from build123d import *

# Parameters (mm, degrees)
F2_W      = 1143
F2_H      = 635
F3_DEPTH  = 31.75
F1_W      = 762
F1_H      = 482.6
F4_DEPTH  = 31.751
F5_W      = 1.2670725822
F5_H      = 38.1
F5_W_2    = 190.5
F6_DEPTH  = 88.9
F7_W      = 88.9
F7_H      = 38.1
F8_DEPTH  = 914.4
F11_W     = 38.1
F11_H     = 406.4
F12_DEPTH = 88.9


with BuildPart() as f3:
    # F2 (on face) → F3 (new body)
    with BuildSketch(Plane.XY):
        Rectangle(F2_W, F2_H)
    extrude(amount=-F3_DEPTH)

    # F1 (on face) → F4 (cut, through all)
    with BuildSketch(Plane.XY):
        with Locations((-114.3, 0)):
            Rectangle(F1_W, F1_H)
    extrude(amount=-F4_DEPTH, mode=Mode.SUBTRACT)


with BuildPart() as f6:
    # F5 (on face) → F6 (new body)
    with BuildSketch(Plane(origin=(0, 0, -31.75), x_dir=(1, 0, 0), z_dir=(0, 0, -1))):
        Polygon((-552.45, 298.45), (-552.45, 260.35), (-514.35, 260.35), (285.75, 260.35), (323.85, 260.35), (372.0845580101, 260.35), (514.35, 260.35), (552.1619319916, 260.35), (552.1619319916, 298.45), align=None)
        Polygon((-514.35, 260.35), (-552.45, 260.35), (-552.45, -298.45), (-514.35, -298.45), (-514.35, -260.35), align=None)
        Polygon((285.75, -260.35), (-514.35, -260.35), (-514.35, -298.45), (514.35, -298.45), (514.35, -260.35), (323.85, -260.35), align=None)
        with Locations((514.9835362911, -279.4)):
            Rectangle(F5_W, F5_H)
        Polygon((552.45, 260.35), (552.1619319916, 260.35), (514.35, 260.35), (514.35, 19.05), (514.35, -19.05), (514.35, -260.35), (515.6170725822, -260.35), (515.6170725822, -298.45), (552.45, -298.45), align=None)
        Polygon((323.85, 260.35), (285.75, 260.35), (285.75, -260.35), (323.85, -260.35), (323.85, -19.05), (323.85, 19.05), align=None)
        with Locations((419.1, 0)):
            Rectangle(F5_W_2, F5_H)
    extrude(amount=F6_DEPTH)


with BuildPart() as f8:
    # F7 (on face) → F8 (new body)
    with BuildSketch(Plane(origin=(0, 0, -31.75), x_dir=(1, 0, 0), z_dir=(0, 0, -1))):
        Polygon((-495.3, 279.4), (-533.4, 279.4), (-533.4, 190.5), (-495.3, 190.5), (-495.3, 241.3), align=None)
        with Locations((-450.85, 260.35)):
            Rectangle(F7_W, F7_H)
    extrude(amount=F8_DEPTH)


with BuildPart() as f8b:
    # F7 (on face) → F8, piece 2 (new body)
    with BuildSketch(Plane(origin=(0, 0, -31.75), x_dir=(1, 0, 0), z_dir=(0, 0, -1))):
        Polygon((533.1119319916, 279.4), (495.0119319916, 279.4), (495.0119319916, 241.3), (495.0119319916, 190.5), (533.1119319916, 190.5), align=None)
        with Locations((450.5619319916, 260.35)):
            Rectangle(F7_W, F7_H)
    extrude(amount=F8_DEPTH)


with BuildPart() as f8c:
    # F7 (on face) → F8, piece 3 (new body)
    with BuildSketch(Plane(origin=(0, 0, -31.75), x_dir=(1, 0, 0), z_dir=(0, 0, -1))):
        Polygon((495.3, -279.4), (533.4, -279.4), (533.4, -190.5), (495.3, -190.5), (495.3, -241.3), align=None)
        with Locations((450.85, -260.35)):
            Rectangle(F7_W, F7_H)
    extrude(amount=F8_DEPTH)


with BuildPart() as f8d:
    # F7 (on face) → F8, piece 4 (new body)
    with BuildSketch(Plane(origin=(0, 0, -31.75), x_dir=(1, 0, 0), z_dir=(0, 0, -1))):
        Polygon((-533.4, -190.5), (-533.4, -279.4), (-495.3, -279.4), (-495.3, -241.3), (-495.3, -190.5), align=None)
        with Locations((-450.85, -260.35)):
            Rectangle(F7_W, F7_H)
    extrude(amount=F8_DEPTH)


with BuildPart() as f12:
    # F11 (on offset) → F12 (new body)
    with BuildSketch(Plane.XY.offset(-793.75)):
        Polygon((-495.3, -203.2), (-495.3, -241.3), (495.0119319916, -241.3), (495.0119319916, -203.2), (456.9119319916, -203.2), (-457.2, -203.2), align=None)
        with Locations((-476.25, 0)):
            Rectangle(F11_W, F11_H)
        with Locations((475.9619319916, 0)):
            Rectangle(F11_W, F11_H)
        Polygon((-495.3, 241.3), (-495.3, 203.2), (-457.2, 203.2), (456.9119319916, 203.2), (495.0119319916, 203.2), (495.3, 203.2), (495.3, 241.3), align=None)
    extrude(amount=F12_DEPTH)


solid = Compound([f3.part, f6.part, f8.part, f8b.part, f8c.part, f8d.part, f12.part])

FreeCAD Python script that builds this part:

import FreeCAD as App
import Part
import Sketcher

V = App.Vector
Q = App.Units.Quantity

doc = App.newDocument("Part")
params = doc.addObject("Spreadsheet::Sheet", "Params")
for row, (alias, value) in enumerate([
    ("sketch1_width", "45 in"),
    ("sketch1_height", "25 in"),
    ("pad1_length", "1.25 in"),
    ("sketch2_width", "30 in"),
    ("sketch2_height", "19 in"),
    ("sketch3_height", "22 in"),
    ("sketch3_width", "43.5 in"),
    ("sketch3_width2", "7.5 in"),
    ("sketch3_width3", "31.5 in"),
    ("sketch3_height2", "23.5 in"),
    ("pad2_length", "3.5 in"),
    ("sketch4_width", "5 in"),
    ("sketch4_height", "2 in"),
    ("pad3_length", "36 in"),
    ("sketch5_width", "5 in"),
    ("sketch5_height", "2 in"),
    ("pad4_length", "36 in"),
    ("sketch6_width", "5 in"),
    ("sketch6_height", "2 in"),
    ("pad5_length", "36 in"),
    ("sketch7_width", "5 in"),
    ("sketch7_height", "2 in"),
    ("pad6_length", "36 in"),
    ("sketch8_width", "39 in"),
    ("sketch8_height", "19 in"),
    ("sketch8_height2", "16 in"),
    ("sketch8_height3", "17.5 in"),
    ("pad7_length", "3.5 in"),
], start=1):
    params.set(f"A{row}", alias)
    params.set(f"B{row}", "=" + value)
    params.setAlias(f"B{row}", alias)

body = doc.addObject("PartDesign::Body", "Body")

# Sketch on XY plane
sketch1 = doc.addObject("Sketcher::SketchObject", "Sketch")
body.addObject(sketch1)
sketch1.AttachmentSupport = (doc.XY_Plane, [""])
sketch1.MapMode = "FlatFace"
sketch1.addGeometry([
    Part.LineSegment(V(-572, 318, 0), V(-572, -318, 0)),
    Part.LineSegment(V(-572, -318, 0), V(572, -318, 0)),
    Part.LineSegment(V(572, -318, 0), V(572, 318, 0)),
    Part.LineSegment(V(572, 318, 0), V(-572, 318, 0)),
], False)
sketch1.addConstraint([
    Sketcher.Constraint("Coincident", 0, 2, 1, 1),
    Sketcher.Constraint("Coincident", 1, 2, 2, 1),
    Sketcher.Constraint("Coincident", 2, 2, 3, 1),
    Sketcher.Constraint("Coincident", 3, 2, 0, 1),
    Sketcher.Constraint("Vertical", 0),
    Sketcher.Constraint("Horizontal", 1),
    Sketcher.Constraint("Vertical", 2),
    Sketcher.Constraint("Horizontal", 3),
    Sketcher.Constraint("Symmetric", 0, 2, 2, 2, -1, 1),
    Sketcher.Constraint("DistanceX", 1, 1, 1, 2, Q("45 in")),
    Sketcher.Constraint("DistanceY", 0, 2, 0, 1, Q("25 in")),
])
sketch1.setExpression("Constraints[9]", "Params.sketch1_width")
sketch1.setExpression("Constraints[10]", "Params.sketch1_height")
pad1 = doc.addObject("PartDesign::Pad", "Pad")
body.addObject(pad1)
pad1.Profile = sketch1
pad1.setExpression("Length", "Params.pad1_length")
pad1.Reversed = True

# Sketch on XY plane
sketch2 = doc.addObject("Sketcher::SketchObject", "Sketch001")
body.addObject(sketch2)
sketch2.AttachmentSupport = (doc.XY_Plane, [""])
sketch2.MapMode = "FlatFace"
sketch2.addGeometry([
    Part.LineSegment(V(-495, 241, 0), V(-495, -241, 0)),
    Part.LineSegment(V(-495, -241, 0), V(267, -241, 0)),
    Part.LineSegment(V(267, -241, 0), V(267, 241, 0)),
    Part.LineSegment(V(267, 241, 0), V(-495, 241, 0)),
], False)
sketch2.addConstraint([
    Sketcher.Constraint("Coincident", 0, 2, 1, 1),
    Sketcher.Constraint("Coincident", 1, 2, 2, 1),
    Sketcher.Constraint("Coincident", 2, 2, 3, 1),
    Sketcher.Constraint("Coincident", 3, 2, 0, 1),
    Sketcher.Constraint("Vertical", 0),
    Sketcher.Constraint("Horizontal", 1),
    Sketcher.Constraint("Vertical", 2),
    Sketcher.Constraint("Horizontal", 3),
    Sketcher.Constraint("DistanceX", 1, 1, 1, 2, Q("30 in")),
    Sketcher.Constraint("DistanceY", 0, 2, 0, 1, Q("19 in")),
    Sketcher.Constraint("DistanceX", 0, 2, -1, 1, Q("19.5 in")),
    Sketcher.Constraint("DistanceY", 0, 2, -1, 1, Q("9.5 in")),
])
sketch2.setExpression("Constraints[8]", "Params.sketch2_width")
sketch2.setExpression("Constraints[9]", "Params.sketch2_height")
pocket1 = doc.addObject("PartDesign::Pocket", "Pocket")
body.addObject(pocket1)
pocket1.Profile = sketch2
pocket1.Type = "ThroughAll"
body2 = doc.addObject("PartDesign::Body", "Body001")

# Sketch on XY plane
sketch3 = doc.addObject("Sketcher::SketchObject", "Sketch002")
body2.addObject(sketch3)
sketch3.AttachmentSupport = (doc.getObject("XY_Plane001"), [""])
sketch3.MapMode = "FlatFace"
sketch3.AttachmentOffset = App.Placement(V(0, 0, -1.25 * 25.4), App.Rotation())
sketch3.addGeometry([
    Part.LineSegment(V(-552.45, -298.45, 0), V(-552.45, 298.45, 0)),  # 0
    Part.LineSegment(V(-552.45, 298.45, 0), V(552.45, 298.45, 0)),  # 1
    Part.LineSegment(V(552.45, 298.45, 0), V(552.45, -260.35, 0)),  # 2
    Part.LineSegment(V(552.45, -260.35, 0), V(552.16, -260.35, 0)),  # 3
    Part.LineSegment(V(552.16, -260.35, 0), V(552.16, -298.45, 0)),  # 4
    Part.LineSegment(V(552.16, -298.45, 0), V(-552.45, -298.45, 0)),  # 5
    Part.LineSegment(V(514.35, 260.35, 0), V(323.85, 260.35, 0)),  # 6
    Part.LineSegment(V(323.85, 260.35, 0), V(323.85, 19.05, 0)),  # 7
    Part.LineSegment(V(323.85, 19.05, 0), V(514.35, 19.05, 0)),  # 8
    Part.LineSegment(V(514.35, 19.05, 0), V(514.35, 260.35, 0)),  # 9
    Part.LineSegment(V(323.85, -19.05, 0), V(323.85, -260.35, 0)),  # 10
    Part.LineSegment(V(323.85, -260.35, 0), V(514.35, -260.35, 0)),  # 11
    Part.LineSegment(V(514.35, -260.35, 0), V(514.35, -19.05, 0)),  # 12
    Part.LineSegment(V(514.35, -19.05, 0), V(323.85, -19.05, 0)),  # 13
    Part.LineSegment(V(285.75, 260.35, 0), V(-514.35, 260.35, 0)),  # 14
    Part.LineSegment(V(-514.35, 260.35, 0), V(-514.35, -260.35, 0)),  # 15
    Part.LineSegment(V(-514.35, -260.35, 0), V(285.75, -260.35, 0)),  # 16
    Part.LineSegment(V(285.75, -260.35, 0), V(285.75, 260.35, 0)),  # 17
], False)
sketch3.addConstraint([
    Sketcher.Constraint("Coincident", 0, 2, 1, 1),
    Sketcher.Constraint("Coincident", 1, 2, 2, 1),
    Sketcher.Constraint("Coincident", 2, 2, 3, 1),
    Sketcher.Constraint("Coincident", 3, 2, 4, 1),
    Sketcher.Constraint("Coincident", 4, 2, 5, 1),
    Sketcher.Constraint("Coincident", 5, 2, 0, 1),
    Sketcher.Constraint("Coincident", 6, 2, 7, 1),
    Sketcher.Constraint("Coincident", 7, 2, 8, 1),
    Sketcher.Constraint("Coincident", 8, 2, 9, 1),
    Sketcher.Constraint("Coincident", 9, 2, 6, 1),
    Sketcher.Constraint("Coincident", 10, 2, 11, 1),
    Sketcher.Constraint("Coincident", 11, 2, 12, 1),
    Sketcher.Constraint("Coincident", 12, 2, 13, 1),
    Sketcher.Constraint("Coincident", 13, 2, 10, 1),
    Sketcher.Constraint("Coincident", 14, 2, 15, 1),
    Sketcher.Constraint("Coincident", 15, 2, 16, 1),
    Sketcher.Constraint("Coincident", 16, 2, 17, 1),
    Sketcher.Constraint("Coincident", 17, 2, 14, 1),
    Sketcher.Constraint("Vertical", 0),
    Sketcher.Constraint("Horizontal", 1),
    Sketcher.Constraint("Vertical", 2),
    Sketcher.Constraint("Horizontal", 3),
    Sketcher.Constraint("Vertical", 4),
    Sketcher.Constraint("Horizontal", 5),
    Sketcher.Constraint("Horizontal", 6),
    Sketcher.Constraint("Vertical", 7),
    Sketcher.Constraint("Horizontal", 8),
    Sketcher.Constraint("Vertical", 9),
    Sketcher.Constraint("Vertical", 10),
    Sketcher.Constraint("Horizontal", 11),
    Sketcher.Constraint("Vertical", 12),
    Sketcher.Constraint("Horizontal", 13),
    Sketcher.Constraint("Horizontal", 14),
    Sketcher.Constraint("Vertical", 15),
    Sketcher.Constraint("Horizontal", 16),
    Sketcher.Constraint("Vertical", 17),
    Sketcher.Constraint("Symmetric", 1, 2, 5, 2, -1, 1),
    Sketcher.Constraint("Symmetric", 11, 2, 14, 2, -1, 1),
    Sketcher.Constraint("Symmetric", 9, 2, 15, 2, -1, 1),
    Sketcher.Constraint("Symmetric", 6, 2, 10, 2, -1),
    Sketcher.Constraint("Horizontal", 3, 2, 10, 2),
    Sketcher.Constraint("Equal", 9, 10),
    Sketcher.Constraint("DistanceY", 2, 2, 2, 1, Q("22 in")),
    Sketcher.Constraint("DistanceX", 1, 1, 1, 2, Q("43.5 in")),
    Sketcher.Constraint("DistanceX", 6, 2, 6, 1, Q("7.5 in")),
    Sketcher.Constraint("DistanceX", 14, 2, 14, 1, Q("31.5 in")),
    Sketcher.Constraint("DistanceY", 0, 1, 0, 2, Q("23.5 in")),
    Sketcher.Constraint("DistanceY", 7, 2, 7, 1, Q("9.5 in")),
    Sketcher.Constraint("DistanceX", 6, 2, 1, 2, Q("9 in")),
    Sketcher.Constraint("DistanceX", 3, 2, 3, 1, Q("0.288068 mm")),
])
sketch3.setExpression("Constraints[42]", "Params.sketch3_height")
sketch3.setExpression("Constraints[43]", "Params.sketch3_width")
sketch3.setExpression("Constraints[44]", "Params.sketch3_width2")
sketch3.setExpression("Constraints[45]", "Params.sketch3_width3")
sketch3.setExpression("Constraints[46]", "Params.sketch3_height2")
pad2 = doc.addObject("PartDesign::Pad", "Pad001")
body2.addObject(pad2)
pad2.Profile = sketch3
pad2.setExpression("Length", "Params.pad2_length")
pad2.Reversed = True
body3 = doc.addObject("PartDesign::Body", "Body002")

# Sketch on XY plane
sketch4 = doc.addObject("Sketcher::SketchObject", "Sketch003")
body3.addObject(sketch4)
sketch4.AttachmentSupport = (doc.getObject("XY_Plane002"), [""])
sketch4.MapMode = "FlatFace"
sketch4.AttachmentOffset = App.Placement(V(0, 0, -1.25 * 25.4), App.Rotation())
sketch4.addGeometry([
    Part.LineSegment(V(-533, -279, 0), V(-533, -190, 0)),  # 0
    Part.LineSegment(V(-533, -190, 0), V(-495, -190, 0)),  # 1
    Part.LineSegment(V(-495, -190, 0), V(-495, -241, 0)),  # 2
    Part.LineSegment(V(-495, -241, 0), V(-406, -241, 0)),  # 3
    Part.LineSegment(V(-406, -241, 0), V(-406, -279, 0)),  # 4
    Part.LineSegment(V(-406, -279, 0), V(-533, -279, 0)),  # 5
], False)
sketch4.addConstraint([
    Sketcher.Constraint("Coincident", 0, 2, 1, 1),
    Sketcher.Constraint("Coincident", 1, 2, 2, 1),
    Sketcher.Constraint("Coincident", 2, 2, 3, 1),
    Sketcher.Constraint("Coincident", 3, 2, 4, 1),
    Sketcher.Constraint("Coincident", 4, 2, 5, 1),
    Sketcher.Constraint("Coincident", 5, 2, 0, 1),
    Sketcher.Constraint("Vertical", 0),
    Sketcher.Constraint("Horizontal", 1),
    Sketcher.Constraint("Vertical", 2),
    Sketcher.Constraint("Horizontal", 3),
    Sketcher.Constraint("Vertical", 4),
    Sketcher.Constraint("Horizontal", 5),
    Sketcher.Constraint("Equal", 3, 0),
    Sketcher.Constraint("Equal", 1, 4),
    Sketcher.Constraint("DistanceX", 5, 2, 5, 1, Q("5 in")),
    Sketcher.Constraint("DistanceY", 2, 2, 2, 1, Q("2 in")),
    Sketcher.Constraint("DistanceX", 0, 2, -1, 1, Q("21 in")),
    Sketcher.Constraint("DistanceY", 4, 2, -1, 1, Q("11 in")),
])
sketch4.setExpression("Constraints[14]", "Params.sketch4_width")
sketch4.setExpression("Constraints[15]", "Params.sketch4_height")
pad3 = doc.addObject("PartDesign::Pad", "Pad002")
body3.addObject(pad3)
pad3.Profile = sketch4
pad3.setExpression("Length", "Params.pad3_length")
pad3.Reversed = True
body4 = doc.addObject("PartDesign::Body", "Body003")

# Sketch on XY plane
sketch5 = doc.addObject("Sketcher::SketchObject", "Sketch004")
body4.addObject(sketch5)
sketch5.AttachmentSupport = (doc.getObject("XY_Plane003"), [""])
sketch5.MapMode = "FlatFace"
sketch5.AttachmentOffset = App.Placement(V(0, 0, -1.25 * 25.4), App.Rotation())
sketch5.addGeometry([
    Part.LineSegment(V(533, -279, 0), V(406, -279, 0)),  # 0
    Part.LineSegment(V(406, -279, 0), V(406, -241, 0)),  # 1
    Part.LineSegment(V(406, -241, 0), V(495, -241, 0)),  # 2
    Part.LineSegment(V(495, -241, 0), V(495, -190, 0)),  # 3
    Part.LineSegment(V(495, -190, 0), V(533, -190, 0)),  # 4
    Part.LineSegment(V(533, -190, 0), V(533, -279, 0)),  # 5
], False)
sketch5.addConstraint([
    Sketcher.Constraint("Coincident", 0, 2, 1, 1),
    Sketcher.Constraint("Coincident", 1, 2, 2, 1),
    Sketcher.Constraint("Coincident", 2, 2, 3, 1),
    Sketcher.Constraint("Coincident", 3, 2, 4, 1),
    Sketcher.Constraint("Coincident", 4, 2, 5, 1),
    Sketcher.Constraint("Coincident", 5, 2, 0, 1),
    Sketcher.Constraint("Horizontal", 0),
    Sketcher.Constraint("Vertical", 1),
    Sketcher.Constraint("Horizontal", 2),
    Sketcher.Constraint("Vertical", 3),
    Sketcher.Constraint("Horizontal", 4),
    Sketcher.Constraint("Vertical", 5),
    Sketcher.Constraint("Equal", 4, 1),
    Sketcher.Constraint("Equal", 2, 5),
    Sketcher.Constraint("DistanceX", 0, 2, 0, 1, Q("5 in")),
    Sketcher.Constraint("DistanceY", 3, 1, 3, 2, Q("2 in")),
    Sketcher.Constraint("DistanceY", 0, 2, -1, 1, Q("11 in")),
    Sketcher.Constraint("DistanceX", -1, 1, 0, 2, Q("406.111932 mm")),
])
sketch5.setExpression("Constraints[14]", "Params.sketch5_width")
sketch5.setExpression("Constraints[15]", "Params.sketch5_height")
pad4 = doc.addObject("PartDesign::Pad", "Pad003")
body4.addObject(pad4)
pad4.Profile = sketch5
pad4.setExpression("Length", "Params.pad4_length")
pad4.Reversed = True
body5 = doc.addObject("PartDesign::Body", "Body004")

# Sketch on XY plane
sketch6 = doc.addObject("Sketcher::SketchObject", "Sketch005")
body5.addObject(sketch6)
sketch6.AttachmentSupport = (doc.getObject("XY_Plane004"), [""])
sketch6.MapMode = "FlatFace"
sketch6.AttachmentOffset = App.Placement(V(0, 0, -1.25 * 25.4), App.Rotation())
sketch6.addGeometry([
    Part.LineSegment(V(533, 279, 0), V(533, 190, 0)),  # 0
    Part.LineSegment(V(533, 190, 0), V(495, 190, 0)),  # 1
    Part.LineSegment(V(495, 190, 0), V(495, 241, 0)),  # 2
    Part.LineSegment(V(495, 241, 0), V(406, 241, 0)),  # 3
    Part.LineSegment(V(406, 241, 0), V(406, 279, 0)),  # 4
    Part.LineSegment(V(406, 279, 0), V(533, 279, 0)),  # 5
], False)
sketch6.addConstraint([
    Sketcher.Constraint("Coincident", 0, 2, 1, 1),
    Sketcher.Constraint("Coincident", 1, 2, 2, 1),
    Sketcher.Constraint("Coincident", 2, 2, 3, 1),
    Sketcher.Constraint("Coincident", 3, 2, 4, 1),
    Sketcher.Constraint("Coincident", 4, 2, 5, 1),
    Sketcher.Constraint("Coincident", 5, 2, 0, 1),
    Sketcher.Constraint("Vertical", 0),
    Sketcher.Constraint("Horizontal", 1),
    Sketcher.Constraint("Vertical", 2),
    Sketcher.Constraint("Horizontal", 3),
    Sketcher.Constraint("Vertical", 4),
    Sketcher.Constraint("Horizontal", 5),
    Sketcher.Constraint("Equal", 3, 0),
    Sketcher.Constraint("Equal", 1, 4),
    Sketcher.Constraint("DistanceX", 5, 1, 5, 2, Q("5 in")),
    Sketcher.Constraint("DistanceY", 2, 1, 2, 2, Q("2 in")),
    Sketcher.Constraint("DistanceX", -1, 1, 0, 2, Q("21 in")),
    Sketcher.Constraint("DistanceY", -1, 1, 4, 2, Q("11 in")),
])
sketch6.setExpression("Constraints[14]", "Params.sketch6_width")
sketch6.setExpression("Constraints[15]", "Params.sketch6_height")
pad5 = doc.addObject("PartDesign::Pad", "Pad004")
body5.addObject(pad5)
pad5.Profile = sketch6
pad5.setExpression("Length", "Params.pad5_length")
pad5.Reversed = True
body6 = doc.addObject("PartDesign::Body", "Body005")

# Sketch on XY plane
sketch7 = doc.addObject("Sketcher::SketchObject", "Sketch006")
body6.addObject(sketch7)
sketch7.AttachmentSupport = (doc.getObject("XY_Plane005"), [""])
sketch7.MapMode = "FlatFace"
sketch7.AttachmentOffset = App.Placement(V(0, 0, -1.25 * 25.4), App.Rotation())
sketch7.addGeometry([
    Part.LineSegment(V(-533, 190, 0), V(-533, 279, 0)),  # 0
    Part.LineSegment(V(-533, 279, 0), V(-406, 279, 0)),  # 1
    Part.LineSegment(V(-406, 279, 0), V(-406, 241, 0)),  # 2
    Part.LineSegment(V(-406, 241, 0), V(-495, 241, 0)),  # 3
    Part.LineSegment(V(-495, 241, 0), V(-495, 190, 0)),  # 4
    Part.LineSegment(V(-495, 190, 0), V(-533, 190, 0)),  # 5
], False)
sketch7.addConstraint([
    Sketcher.Constraint("Coincident", 0, 2, 1, 1),
    Sketcher.Constraint("Coincident", 1, 2, 2, 1),
    Sketcher.Constraint("Coincident", 2, 2, 3, 1),
    Sketcher.Constraint("Coincident", 3, 2, 4, 1),
    Sketcher.Constraint("Coincident", 4, 2, 5, 1),
    Sketcher.Constraint("Coincident", 5, 2, 0, 1),
    Sketcher.Constraint("Vertical", 0),
    Sketcher.Constraint("Horizontal", 1),
    Sketcher.Constraint("Vertical", 2),
    Sketcher.Constraint("Horizontal", 3),
    Sketcher.Constraint("Vertical", 4),
    Sketcher.Constraint("Horizontal", 5),
    Sketcher.Constraint("Equal", 3, 0),
    Sketcher.Constraint("Equal", 5, 2),
    Sketcher.Constraint("DistanceX", 1, 1, 1, 2, Q("5 in")),
    Sketcher.Constraint("DistanceY", 4, 2, 4, 1, Q("2 in")),
    Sketcher.Constraint("DistanceX", 0, 2, -1, 1, Q("21 in")),
    Sketcher.Constraint("DistanceY", -1, 1, 0, 2, Q("11 in")),
])
sketch7.setExpression("Constraints[14]", "Params.sketch7_width")
sketch7.setExpression("Constraints[15]", "Params.sketch7_height")
pad6 = doc.addObject("PartDesign::Pad", "Pad005")
body6.addObject(pad6)
pad6.Profile = sketch7
pad6.setExpression("Length", "Params.pad6_length")
pad6.Reversed = True
body7 = doc.addObject("PartDesign::Body", "Body006")

# Sketch on XY plane
sketch8 = doc.addObject("Sketcher::SketchObject", "Sketch007")
body7.addObject(sketch8)
sketch8.AttachmentSupport = (doc.getObject("XY_Plane006"), [""])
sketch8.MapMode = "FlatFace"
sketch8.AttachmentOffset = App.Placement(V(0, 0, -31.25 * 25.4), App.Rotation())
sketch8.addGeometry([
    Part.LineSegment(V(-495.3, -241.3, 0), V(495.01, -241.3, 0)),  # 0
    Part.LineSegment(V(495.01, -241.3, 0), V(495.01, 203.2, 0)),  # 1
    Part.LineSegment(V(495.01, 203.2, 0), V(495.3, 203.2, 0)),  # 2
    Part.LineSegment(V(495.3, 203.2, 0), V(495.3, 241.3, 0)),  # 3
    Part.LineSegment(V(495.3, 241.3, 0), V(-495.3, 241.3, 0)),  # 4
    Part.LineSegment(V(-495.3, 241.3, 0), V(-495.3, -241.3, 0)),  # 5
    Part.LineSegment(V(456.91, 203.2, 0), V(456.91, -203.2, 0)),  # 6
    Part.LineSegment(V(456.91, -203.2, 0), V(-457.2, -203.2, 0)),  # 7
    Part.LineSegment(V(-457.2, -203.2, 0), V(-457.2, 203.2, 0)),  # 8
    Part.LineSegment(V(-457.2, 203.2, 0), V(456.91, 203.2, 0)),  # 9
], False)
sketch8.addConstraint([
    Sketcher.Constraint("Coincident", 0, 2, 1, 1),
    Sketcher.Constraint("Coincident", 1, 2, 2, 1),
    Sketcher.Constraint("Coincident", 2, 2, 3, 1),
    Sketcher.Constraint("Coincident", 3, 2, 4, 1),
    Sketcher.Constraint("Coincident", 4, 2, 5, 1),
    Sketcher.Constraint("Coincident", 5, 2, 0, 1),
    Sketcher.Constraint("Coincident", 6, 2, 7, 1),
    Sketcher.Constraint("Coincident", 7, 2, 8, 1),
    Sketcher.Constraint("Coincident", 8, 2, 9, 1),
    Sketcher.Constraint("Coincident", 9, 2, 6, 1),
    Sketcher.Constraint("Horizontal", 0),
    Sketcher.Constraint("Vertical", 1),
    Sketcher.Constraint("Horizontal", 2),
    Sketcher.Constraint("Vertical", 3),
    Sketcher.Constraint("Horizontal", 4),
    Sketcher.Constraint("Vertical", 5),
    Sketcher.Constraint("Vertical", 6),
    Sketcher.Constraint("Horizontal", 7),
    Sketcher.Constraint("Vertical", 8),
    Sketcher.Constraint("Horizontal", 9),
    Sketcher.Constraint("Symmetric", 3, 2, 5, 2, -1, 1),
    Sketcher.Constraint("Horizontal", 2, 2, 8, 2),
    Sketcher.Constraint("DistanceX", 4, 2, 4, 1, Q("39 in")),
    Sketcher.Constraint("DistanceY", 5, 2, 5, 1, Q("19 in")),
    Sketcher.Constraint("DistanceY", 6, 2, 6, 1, Q("16 in")),
    Sketcher.Constraint("DistanceY", 1, 1, 1, 2, Q("17.5 in")),
    Sketcher.Constraint("DistanceX", 7, 2, -1, 1, Q("18 in")),
    Sketcher.Constraint("DistanceX", 6, 2, 0, 2, Q("1.5 in")),
    Sketcher.Constraint("DistanceX", 0, 1, 0, 2, Q("990.311932 mm")),
])
sketch8.setExpression("Constraints[22]", "Params.sketch8_width")
sketch8.setExpression("Constraints[23]", "Params.sketch8_height")
sketch8.setExpression("Constraints[24]", "Params.sketch8_height2")
sketch8.setExpression("Constraints[25]", "Params.sketch8_height3")
pad7 = doc.addObject("PartDesign::Pad", "Pad006")
body7.addObject(pad7)
pad7.Profile = sketch8
pad7.setExpression("Length", "Params.pad7_length")

doc.recompute()
